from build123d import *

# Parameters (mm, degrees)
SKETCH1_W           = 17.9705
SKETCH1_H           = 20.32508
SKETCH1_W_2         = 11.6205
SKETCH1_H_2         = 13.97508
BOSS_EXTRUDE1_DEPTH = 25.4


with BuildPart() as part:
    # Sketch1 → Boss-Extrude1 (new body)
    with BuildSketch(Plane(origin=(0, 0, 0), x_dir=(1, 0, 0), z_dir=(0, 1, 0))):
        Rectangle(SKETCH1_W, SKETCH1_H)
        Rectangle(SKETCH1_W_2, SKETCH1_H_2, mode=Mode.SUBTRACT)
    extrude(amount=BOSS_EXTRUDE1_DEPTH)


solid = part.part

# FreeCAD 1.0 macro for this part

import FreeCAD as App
import Part
import Sketcher

V = App.Vector
Q = App.Units.Quantity

doc = App.newDocument("Part")
body = doc.addObject("PartDesign::Body", "Body")

# Sketch on XZ plane
sketch1 = body.newObject("Sketcher::SketchObject", "Sketch")
sketch1.AttachmentSupport = (doc.getObject("XZ_Plane"), [""])
sketch1.MapMode = "FlatFace"
sketch1.addGeometry([
    Part.LineSegment(V(-8.98525, -10.16254, 0), V(-8.98525, 10.16254, 0)),  # 0
    Part.LineSegment(V(-8.98525, 10.16254, 0), V(8.98525, 10.16254, 0)),  # 1
    Part.LineSegment(V(8.98525, 10.16254, 0), V(8.98525, -10.16254, 0)),  # 2
    Part.LineSegment(V(8.98525, -10.16254, 0), V(-8.98525, -10.16254, 0)),  # 3
    Part.LineSegment(V(5.81025, 6.98754, 0), V(-5.81025, 6.98754, 0)),  # 4
    Part.LineSegment(V(-5.81025, 6.98754, 0), V(-5.81025, -6.98754, 0)),  # 5
    Part.LineSegment(V(-5.81025, -6.98754, 0), V(5.81025, -6.98754, 0)),  # 6
    Part.LineSegment(V(5.81025, -6.98754, 0), V(5.81025, 6.98754, 0)),  # 7
], False)
sketch1.addConstraint([
    Sketcher.Constraint("Coincident", 0, 2, 1, 1),
    Sketcher.Constraint("Coincident", 1, 2, 2, 1),
    Sketcher.Constraint("Coincident", 2, 2, 3, 1),
    Sketcher.Constraint("Coincident", 3, 2, 0, 1),
    Sketcher.Constraint("Coincident", 4, 2, 5, 1),
    Sketcher.Constraint("Coincident", 5, 2, 6, 1),
    Sketcher.Constraint("Coincident", 6, 2, 7, 1),
    Sketcher.Constraint("Coincident", 7, 2, 4, 1),
    Sketcher.Constraint("Vertical", 0),
    Sketcher.Constraint("Horizontal", 1),
    Sketcher.Constraint("Vertical", 2),
    Sketcher.Constraint("Horizontal", 3),
    Sketcher.Constraint("Horizontal", 4),
    Sketcher.Constraint("Vertical", 5),
    Sketcher.Constraint("Horizontal", 6),
    Sketcher.Constraint("Vertical", 7),
    Sketcher.Constraint("Symmetric", 0, 2, 2, 2, -1, 1),
    Sketcher.Constraint("Symmetric", 4, 2, 6, 2, -1, 1),
    Sketcher.Constraint("DistanceX", 1, 1, 1, 2, Q("0.7075 in")),
    Sketcher.Constraint("DistanceX", 4, 2, 4, 1, Q("0.4575 in")),
    Sketcher.Constraint("DistanceY", 0, 1, 0, 2, Q("0.8002 in")),
    Sketcher.Constraint("DistanceY", 5, 2, 5, 1, Q("0.5502 in")),
])
pad1 = body.newObject("PartDesign::Pad", "Pad")
pad1.Profile = sketch1
pad1.Length = Q("1 in")
pad1.Reversed = True

doc.recompute()
